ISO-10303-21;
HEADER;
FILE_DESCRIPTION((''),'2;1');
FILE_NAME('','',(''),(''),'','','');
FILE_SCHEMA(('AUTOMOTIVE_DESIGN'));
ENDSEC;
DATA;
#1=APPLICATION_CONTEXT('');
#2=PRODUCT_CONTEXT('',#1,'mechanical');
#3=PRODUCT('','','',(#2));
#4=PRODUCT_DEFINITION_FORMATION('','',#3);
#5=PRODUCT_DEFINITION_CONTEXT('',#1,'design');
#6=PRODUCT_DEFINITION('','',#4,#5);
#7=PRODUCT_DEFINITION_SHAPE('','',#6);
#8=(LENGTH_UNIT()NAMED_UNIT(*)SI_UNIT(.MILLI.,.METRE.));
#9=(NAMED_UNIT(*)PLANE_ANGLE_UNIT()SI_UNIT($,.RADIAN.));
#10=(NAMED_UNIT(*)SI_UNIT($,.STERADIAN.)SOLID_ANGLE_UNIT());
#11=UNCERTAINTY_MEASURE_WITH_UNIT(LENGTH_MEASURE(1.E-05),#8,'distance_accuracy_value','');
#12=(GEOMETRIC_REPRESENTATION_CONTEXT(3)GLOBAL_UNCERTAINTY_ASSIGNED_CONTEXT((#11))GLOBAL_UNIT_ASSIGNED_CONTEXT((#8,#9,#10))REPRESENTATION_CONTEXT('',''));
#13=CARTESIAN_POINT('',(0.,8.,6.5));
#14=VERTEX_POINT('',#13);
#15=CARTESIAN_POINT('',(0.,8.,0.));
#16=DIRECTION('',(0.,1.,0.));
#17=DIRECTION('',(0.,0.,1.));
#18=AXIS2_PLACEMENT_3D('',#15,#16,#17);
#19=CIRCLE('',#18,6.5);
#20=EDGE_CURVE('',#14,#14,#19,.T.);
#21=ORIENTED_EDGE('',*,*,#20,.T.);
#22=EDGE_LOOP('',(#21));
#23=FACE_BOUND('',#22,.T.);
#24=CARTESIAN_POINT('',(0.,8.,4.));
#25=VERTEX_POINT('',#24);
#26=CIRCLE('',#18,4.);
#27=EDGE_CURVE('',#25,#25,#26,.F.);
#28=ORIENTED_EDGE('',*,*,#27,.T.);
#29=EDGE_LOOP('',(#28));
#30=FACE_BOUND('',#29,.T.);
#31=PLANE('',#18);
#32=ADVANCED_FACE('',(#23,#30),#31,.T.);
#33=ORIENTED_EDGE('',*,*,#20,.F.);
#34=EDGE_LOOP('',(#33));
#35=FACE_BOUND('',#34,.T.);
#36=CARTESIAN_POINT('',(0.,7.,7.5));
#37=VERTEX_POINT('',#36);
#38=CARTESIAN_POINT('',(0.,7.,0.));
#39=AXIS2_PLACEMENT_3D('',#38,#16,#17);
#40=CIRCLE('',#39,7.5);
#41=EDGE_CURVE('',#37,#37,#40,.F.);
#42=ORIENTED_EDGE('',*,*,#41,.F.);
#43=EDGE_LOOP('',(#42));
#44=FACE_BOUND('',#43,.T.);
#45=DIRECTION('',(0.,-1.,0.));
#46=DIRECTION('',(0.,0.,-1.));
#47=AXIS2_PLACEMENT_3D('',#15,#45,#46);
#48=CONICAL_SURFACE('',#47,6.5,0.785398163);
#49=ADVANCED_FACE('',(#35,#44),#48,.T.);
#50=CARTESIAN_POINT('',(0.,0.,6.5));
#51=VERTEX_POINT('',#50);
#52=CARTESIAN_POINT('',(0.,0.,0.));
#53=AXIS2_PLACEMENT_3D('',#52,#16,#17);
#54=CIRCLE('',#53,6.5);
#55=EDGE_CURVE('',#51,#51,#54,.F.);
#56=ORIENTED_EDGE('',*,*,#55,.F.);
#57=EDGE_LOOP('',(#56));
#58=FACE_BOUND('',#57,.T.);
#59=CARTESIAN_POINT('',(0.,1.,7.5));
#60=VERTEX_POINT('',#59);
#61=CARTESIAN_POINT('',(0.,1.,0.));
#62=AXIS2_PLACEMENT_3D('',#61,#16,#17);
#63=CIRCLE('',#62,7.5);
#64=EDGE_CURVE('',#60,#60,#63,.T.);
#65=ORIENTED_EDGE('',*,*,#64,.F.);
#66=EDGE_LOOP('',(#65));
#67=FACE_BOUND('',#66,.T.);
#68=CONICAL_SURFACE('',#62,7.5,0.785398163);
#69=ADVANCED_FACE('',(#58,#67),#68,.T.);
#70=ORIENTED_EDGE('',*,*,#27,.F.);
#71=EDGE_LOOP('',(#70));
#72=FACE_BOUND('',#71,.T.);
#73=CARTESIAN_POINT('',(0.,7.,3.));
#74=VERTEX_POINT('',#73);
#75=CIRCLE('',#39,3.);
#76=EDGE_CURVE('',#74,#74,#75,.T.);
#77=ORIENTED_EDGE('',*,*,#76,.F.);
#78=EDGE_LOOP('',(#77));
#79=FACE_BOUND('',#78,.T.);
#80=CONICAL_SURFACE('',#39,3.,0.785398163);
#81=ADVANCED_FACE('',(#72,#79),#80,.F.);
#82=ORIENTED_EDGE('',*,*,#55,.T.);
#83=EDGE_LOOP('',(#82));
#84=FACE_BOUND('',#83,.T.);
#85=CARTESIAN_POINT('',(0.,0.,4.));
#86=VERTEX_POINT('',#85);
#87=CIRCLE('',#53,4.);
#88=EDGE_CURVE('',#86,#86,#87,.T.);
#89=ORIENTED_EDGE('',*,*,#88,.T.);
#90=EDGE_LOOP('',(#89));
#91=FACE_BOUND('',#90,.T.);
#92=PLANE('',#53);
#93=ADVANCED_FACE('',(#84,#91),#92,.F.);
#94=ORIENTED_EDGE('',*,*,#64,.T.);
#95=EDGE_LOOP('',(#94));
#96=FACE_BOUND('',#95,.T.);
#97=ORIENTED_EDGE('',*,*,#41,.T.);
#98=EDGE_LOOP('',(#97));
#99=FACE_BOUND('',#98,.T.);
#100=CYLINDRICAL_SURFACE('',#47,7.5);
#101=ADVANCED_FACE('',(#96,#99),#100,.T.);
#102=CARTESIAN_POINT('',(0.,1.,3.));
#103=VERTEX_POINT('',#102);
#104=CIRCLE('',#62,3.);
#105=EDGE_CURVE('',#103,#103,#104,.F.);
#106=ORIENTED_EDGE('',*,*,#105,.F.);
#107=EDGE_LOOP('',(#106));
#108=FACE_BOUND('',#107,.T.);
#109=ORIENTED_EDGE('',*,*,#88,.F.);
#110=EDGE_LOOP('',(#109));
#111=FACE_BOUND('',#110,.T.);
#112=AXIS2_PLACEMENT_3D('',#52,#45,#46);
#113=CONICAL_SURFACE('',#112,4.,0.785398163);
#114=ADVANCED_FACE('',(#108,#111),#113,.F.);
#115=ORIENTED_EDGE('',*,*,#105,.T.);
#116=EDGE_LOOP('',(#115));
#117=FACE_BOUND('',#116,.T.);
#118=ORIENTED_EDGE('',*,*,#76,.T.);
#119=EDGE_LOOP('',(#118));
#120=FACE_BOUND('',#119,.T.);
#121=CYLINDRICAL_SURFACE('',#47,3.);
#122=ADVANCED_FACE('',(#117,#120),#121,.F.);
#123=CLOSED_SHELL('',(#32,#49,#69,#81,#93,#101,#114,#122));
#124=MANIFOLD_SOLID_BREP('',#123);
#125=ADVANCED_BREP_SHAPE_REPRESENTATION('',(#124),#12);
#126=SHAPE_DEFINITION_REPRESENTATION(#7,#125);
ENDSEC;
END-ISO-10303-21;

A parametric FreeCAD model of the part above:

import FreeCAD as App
import Part
import Sketcher

V = App.Vector


def edges_at(feature, points):
    """Names of the edges that pass closest to the given points."""
    edges = feature.Shape.Edges
    near = lambda p: min(range(len(edges)), key=lambda i: edges[i].distToShape(Part.Vertex(*p))[0])
    return sorted({f"Edge{near(p) + 1}" for p in points})

doc = App.newDocument("Part")
params = doc.addObject("Spreadsheet::Sheet", "Params")
for row, (alias, value) in enumerate([
    ("sketch1_diameter", "15 mm"),
    ("sketch1_diameter2", "6 mm"),
    ("pad1_length", "8 mm"),
    ("chamfer_size", "1 mm"),
], start=1):
    params.set(f"A{row}", alias)
    params.set(f"B{row}", "=" + value)
    params.setAlias(f"B{row}", alias)

body = doc.addObject("PartDesign::Body", "Body")

# Sketch on XZ plane
sketch1 = body.newObject("Sketcher::SketchObject", "Sketch")
sketch1.AttachmentSupport = (doc.getObject("XZ_Plane"), [""])
sketch1.MapMode = "FlatFace"
sketch1.addGeometry(Part.Circle(V(0, 0, 0), V(0, 0, 1), 7.5), False)
sketch1.addGeometry(Part.Circle(V(0, 0, 0), V(0, 0, 1), 3), False)
sketch1.addConstraint(Sketcher.Constraint("Coincident", 0, 3, -1, 1))
sketch1.addConstraint(Sketcher.Constraint("Coincident", 1, 3, -1, 1))
sketch1.addConstraint(Sketcher.Constraint("Diameter", 0, 15.0))
sketch1.addConstraint(Sketcher.Constraint("Diameter", 1, 6.0))
sketch1.setExpression("Constraints[2]", "Params.sketch1_diameter")
sketch1.setExpression("Constraints[3]", "Params.sketch1_diameter2")
pad1 = body.newObject("PartDesign::Pad", "Pad")
pad1.Profile = sketch1
pad1.setExpression("Length", "Params.pad1_length")
pad1.Reversed = True
doc.recompute()

chamfer = body.newObject("PartDesign::Chamfer", "Chamfer")
chamfer.Base = (pad1, edges_at(pad1, [
    (-7.5, 0, 0),
    (-7.5, 8, 0),
    (-3, 0, 0),
    (-3, 8, 0),
]))
chamfer.setExpression("Size", "Params.chamfer_size")

doc.recompute()
